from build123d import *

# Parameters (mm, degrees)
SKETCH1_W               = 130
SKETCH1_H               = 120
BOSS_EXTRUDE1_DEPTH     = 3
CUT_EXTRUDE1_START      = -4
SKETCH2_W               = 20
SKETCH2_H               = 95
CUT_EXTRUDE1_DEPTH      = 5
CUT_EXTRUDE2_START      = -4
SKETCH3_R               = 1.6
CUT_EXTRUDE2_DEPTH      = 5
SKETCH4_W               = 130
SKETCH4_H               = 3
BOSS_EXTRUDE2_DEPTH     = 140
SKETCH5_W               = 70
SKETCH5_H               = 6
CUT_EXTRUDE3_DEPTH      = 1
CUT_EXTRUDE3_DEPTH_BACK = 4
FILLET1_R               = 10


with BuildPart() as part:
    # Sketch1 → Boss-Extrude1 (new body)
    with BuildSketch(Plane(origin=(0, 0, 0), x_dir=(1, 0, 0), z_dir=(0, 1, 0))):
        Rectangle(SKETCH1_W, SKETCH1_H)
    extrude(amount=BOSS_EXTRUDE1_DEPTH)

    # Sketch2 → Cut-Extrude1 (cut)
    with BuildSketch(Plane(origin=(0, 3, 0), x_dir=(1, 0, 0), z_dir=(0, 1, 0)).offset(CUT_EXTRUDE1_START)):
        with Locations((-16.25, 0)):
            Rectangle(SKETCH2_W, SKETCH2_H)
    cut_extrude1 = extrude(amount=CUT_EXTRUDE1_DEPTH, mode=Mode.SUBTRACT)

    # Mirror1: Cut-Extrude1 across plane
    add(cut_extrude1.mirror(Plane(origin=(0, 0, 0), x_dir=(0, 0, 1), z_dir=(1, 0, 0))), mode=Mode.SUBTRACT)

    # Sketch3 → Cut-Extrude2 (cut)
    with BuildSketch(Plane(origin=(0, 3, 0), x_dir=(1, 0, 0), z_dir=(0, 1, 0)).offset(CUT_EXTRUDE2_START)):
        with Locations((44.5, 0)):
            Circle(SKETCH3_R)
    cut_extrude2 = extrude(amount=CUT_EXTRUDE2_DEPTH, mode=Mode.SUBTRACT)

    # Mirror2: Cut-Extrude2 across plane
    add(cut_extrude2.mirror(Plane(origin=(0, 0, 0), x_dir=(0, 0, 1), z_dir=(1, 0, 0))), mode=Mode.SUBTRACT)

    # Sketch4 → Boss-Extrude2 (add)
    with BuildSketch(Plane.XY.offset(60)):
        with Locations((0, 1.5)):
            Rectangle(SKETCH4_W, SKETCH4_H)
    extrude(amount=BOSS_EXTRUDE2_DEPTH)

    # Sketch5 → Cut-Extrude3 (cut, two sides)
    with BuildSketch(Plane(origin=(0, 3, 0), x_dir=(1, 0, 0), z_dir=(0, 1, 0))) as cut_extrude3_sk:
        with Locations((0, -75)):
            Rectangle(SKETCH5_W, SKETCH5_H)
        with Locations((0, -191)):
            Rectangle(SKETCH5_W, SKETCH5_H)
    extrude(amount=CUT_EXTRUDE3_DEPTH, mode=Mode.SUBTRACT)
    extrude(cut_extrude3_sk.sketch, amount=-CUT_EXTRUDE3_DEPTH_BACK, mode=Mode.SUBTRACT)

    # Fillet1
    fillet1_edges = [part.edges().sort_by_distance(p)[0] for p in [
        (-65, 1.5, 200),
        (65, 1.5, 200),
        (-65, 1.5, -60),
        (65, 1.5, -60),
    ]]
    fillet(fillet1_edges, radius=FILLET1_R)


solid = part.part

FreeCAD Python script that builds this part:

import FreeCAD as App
import Part
import Sketcher

V = App.Vector


def edges_at(feature, points):
    """Names of the edges that pass closest to the given points."""
    edges = feature.Shape.Edges
    near = lambda p: min(range(len(edges)), key=lambda i: edges[i].distToShape(Part.Vertex(*p))[0])
    return sorted({f"Edge{near(p) + 1}" for p in points})

doc = App.newDocument("Part")
body = doc.addObject("PartDesign::Body", "Body")

sketch1 = body.newObject("Sketcher::SketchObject", "Sketch")
sketch1.AttachmentSupport = (doc.getObject("XZ_Plane"), [""])
sketch1.MapMode = "FlatFace"
sketch1.addGeometry([
    Part.LineSegment(V(-65, -60, 0), V(-65, 60, 0)),
    Part.LineSegment(V(-65, 60, 0), V(65, 60, 0)),
    Part.LineSegment(V(65, 60, 0), V(65, -60, 0)),
    Part.LineSegment(V(65, -60, 0), V(-65, -60, 0)),
], False)
sketch1.addConstraint([
    Sketcher.Constraint("Coincident", 0, 2, 1, 1),
    Sketcher.Constraint("Coincident", 1, 2, 2, 1),
    Sketcher.Constraint("Coincident", 2, 2, 3, 1),
    Sketcher.Constraint("Coincident", 3, 2, 0, 1),
    Sketcher.Constraint("Vertical", 0),
    Sketcher.Constraint("Horizontal", 1),
    Sketcher.Constraint("Vertical", 2),
    Sketcher.Constraint("Horizontal", 3),
    Sketcher.Constraint("Symmetric", 0, 2, 2, 2, -1, 1),
    Sketcher.Constraint("DistanceX", 1, 1, 1, 2, 130.0),
    Sketcher.Constraint("DistanceY", 0, 1, 0, 2, 120.0),
])
pad1 = body.newObject("PartDesign::Pad", "Pad")
pad1.Profile = sketch1
pad1.Length = 3
pad1.Reversed = True

sketch2 = body.newObject("Sketcher::SketchObject", "Sketch001")
sketch2.AttachmentSupport = (doc.getObject("XZ_Plane"), [""])
sketch2.MapMode = "FlatFace"
sketch2.AttachmentOffset = App.Placement(V(0, 0, 1), App.Rotation())
sketch2.addGeometry([
    Part.LineSegment(V(-26, -48, 0), V(-26, 48, 0)),
    Part.LineSegment(V(-26, 48, 0), V(-6, 48, 0)),
    Part.LineSegment(V(-6, 48, 0), V(-6, -48, 0)),
    Part.LineSegment(V(-6, -48, 0), V(-26, -48, 0)),
], False)
sketch2.addConstraint([
    Sketcher.Constraint("Coincident", 0, 2, 1, 1),
    Sketcher.Constraint("Coincident", 1, 2, 2, 1),
    Sketcher.Constraint("Coincident", 2, 2, 3, 1),
    Sketcher.Constraint("Coincident", 3, 2, 0, 1),
    Sketcher.Constraint("Vertical", 0),
    Sketcher.Constraint("Horizontal", 1),
    Sketcher.Constraint("Vertical", 2),
    Sketcher.Constraint("Horizontal", 3),
    Sketcher.Constraint("DistanceX", 1, 1, 1, 2, 20.0),
    Sketcher.Constraint("DistanceY", 0, 1, 0, 2, 95.0),
    Sketcher.Constraint("DistanceY", -1, 1, 0, 2, 47.5),
    Sketcher.Constraint("DistanceX", 0, 2, -1, 1, 26.25),
])
pocket1 = body.newObject("PartDesign::Pocket", "Pocket")
pocket1.Profile = sketch2
pocket1.Length = 5
doc.recompute()

mirrored = body.newObject("PartDesign::Mirrored", "Mirrored")
mirrored.Originals = [pocket1]
mirrored.MirrorPlane = (doc.getObject("YZ_Plane"), [""])
body.Tip = mirrored

sketch3 = body.newObject("Sketcher::SketchObject", "Sketch002")
sketch3.AttachmentSupport = (doc.getObject("XZ_Plane"), [""])
sketch3.MapMode = "FlatFace"
sketch3.AttachmentOffset = App.Placement(V(0, 0, 1), App.Rotation())
sketch3.addGeometry(Part.Circle(V(44.5, 0, 0), V(0, 0, 1), 1.6), False)
sketch3.addConstraint([
    Sketcher.Constraint("PointOnObject", 0, 3, -1),
    Sketcher.Constraint("Diameter", 0, 3.2),
    Sketcher.Constraint("DistanceX", -1, 1, 0, 3, 44.5),
])
pocket2 = body.newObject("PartDesign::Pocket", "Pocket001")
pocket2.Profile = sketch3
pocket2.Length = 5
doc.recompute()

mirrored2 = body.newObject("PartDesign::Mirrored", "Mirrored001")
mirrored2.Originals = [pocket2]
mirrored2.MirrorPlane = (doc.getObject("YZ_Plane"), [""])
body.Tip = mirrored2

sketch4 = body.newObject("Sketcher::SketchObject", "Sketch003")
sketch4.AttachmentSupport = (doc.getObject("XY_Plane"), [""])
sketch4.MapMode = "FlatFace"
sketch4.AttachmentOffset = App.Placement(V(0, 0, 60), App.Rotation())
sketch4.addGeometry([
    Part.LineSegment(V(-65, 3, 0), V(-65, 0, 0)),
    Part.LineSegment(V(-65, 0, 0), V(65, 0, 0)),
    Part.LineSegment(V(65, 0, 0), V(65, 3, 0)),
    Part.LineSegment(V(65, 3, 0), V(-65, 3, 0)),
], False)
sketch4.addConstraint([
    Sketcher.Constraint("Coincident", 0, 2, 1, 1),
    Sketcher.Constraint("Coincident", 1, 2, 2, 1),
    Sketcher.Constraint("Coincident", 2, 2, 3, 1),
    Sketcher.Constraint("Coincident", 3, 2, 0, 1),
    Sketcher.Constraint("Vertical", 0),
    Sketcher.Constraint("Horizontal", 1),
    Sketcher.Constraint("Vertical", 2),
    Sketcher.Constraint("Horizontal", 3),
    Sketcher.Constraint("Symmetric", 0, 2, 1, 2, -1, 1),
    Sketcher.Constraint("DistanceX", 1, 1, 1, 2, 130.0),
    Sketcher.Constraint("DistanceY", 0, 2, 0, 1, 3.0),
])
pad2 = body.newObject("PartDesign::Pad", "Pad001")
pad2.Profile = sketch4
pad2.Length = 140

sketch5 = body.newObject("Sketcher::SketchObject", "Sketch004")
sketch5.AttachmentSupport = (doc.getObject("XZ_Plane"), [""])
sketch5.MapMode = "FlatFace"
sketch5.AttachmentOffset = App.Placement(V(0, 0, -3), App.Rotation())
sketch5.addGeometry([
    Part.LineSegment(V(-35, 72, 0), V(-35, 78, 0)),
    Part.LineSegment(V(-35, 78, 0), V(35, 78, 0)),
    Part.LineSegment(V(35, 78, 0), V(35, 72, 0)),
    Part.LineSegment(V(35, 72, 0), V(-35, 72, 0)),
    Part.LineSegment(V(-35, 188, 0), V(-35, 194, 0)),
    Part.LineSegment(V(-35, 194, 0), V(35, 194, 0)),
    Part.LineSegment(V(35, 194, 0), V(35, 188, 0)),
    Part.LineSegment(V(35, 188, 0), V(-35, 188, 0)),
], False)
sketch5.addConstraint([
    Sketcher.Constraint("Coincident", 0, 2, 1, 1),
    Sketcher.Constraint("Coincident", 1, 2, 2, 1),
    Sketcher.Constraint("Coincident", 2, 2, 3, 1),
    Sketcher.Constraint("Coincident", 3, 2, 0, 1),
    Sketcher.Constraint("Coincident", 4, 2, 5, 1),
    Sketcher.Constraint("Coincident", 5, 2, 6, 1),
    Sketcher.Constraint("Coincident", 6, 2, 7, 1),
    Sketcher.Constraint("Coincident", 7, 2, 4, 1),
    Sketcher.Constraint("Vertical", 0),
    Sketcher.Constraint("Horizontal", 1),
    Sketcher.Constraint("Vertical", 2),
    Sketcher.Constraint("Horizontal", 3),
    Sketcher.Constraint("Vertical", 4),
    Sketcher.Constraint("Horizontal", 5),
    Sketcher.Constraint("Vertical", 6),
    Sketcher.Constraint("Horizontal", 7),
    Sketcher.Constraint("Vertical", 3, 2, 4, 2),
    Sketcher.Constraint("Vertical", 2, 2, 5, 2),
    Sketcher.Constraint("Equal", 2, 4),
    Sketcher.Constraint("DistanceX", 1, 1, 1, 2, 70.0),
    Sketcher.Constraint("DistanceY", 0, 1, 0, 2, 6.0),
    Sketcher.Constraint("DistanceX", 0, 2, -1, 1, 35.0),
    Sketcher.Constraint("DistanceY", -1, 1, 0, 2, 78.0),
    Sketcher.Constraint("DistanceY", -1, 1, 4, 2, 194.0),
])
pocket3 = body.newObject("PartDesign::Pocket", "Pocket002")
pocket3.Profile = sketch5
pocket3.Type = "ThroughAll"
pocket3.Midplane = True
doc.recompute()

fillet = body.newObject("PartDesign::Fillet", "Fillet")
fillet.Base = (pocket3, edges_at(pocket3, [
    (-65, 1.5, 200),
    (65, 1.5, 200),
    (-65, 1.5, -60),
    (65, 1.5, -60),
]))
fillet.Radius = 10

doc.recompute()
